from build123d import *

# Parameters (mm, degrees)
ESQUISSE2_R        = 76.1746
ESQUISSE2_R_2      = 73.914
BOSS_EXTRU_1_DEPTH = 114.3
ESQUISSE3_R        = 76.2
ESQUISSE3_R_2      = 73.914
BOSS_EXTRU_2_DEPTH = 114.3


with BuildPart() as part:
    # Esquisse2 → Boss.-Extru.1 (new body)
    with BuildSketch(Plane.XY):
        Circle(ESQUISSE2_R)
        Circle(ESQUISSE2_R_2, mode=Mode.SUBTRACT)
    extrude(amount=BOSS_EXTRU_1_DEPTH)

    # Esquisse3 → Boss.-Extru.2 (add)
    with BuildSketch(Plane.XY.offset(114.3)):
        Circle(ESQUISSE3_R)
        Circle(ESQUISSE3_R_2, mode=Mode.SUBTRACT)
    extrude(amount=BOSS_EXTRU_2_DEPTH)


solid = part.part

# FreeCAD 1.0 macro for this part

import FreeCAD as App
import Part
import Sketcher
from FreeCAD import Vector
Q = App.Units.Quantity

doc = App.newDocument("Part")
body = doc.addObject("PartDesign::Body", "Body")

sketch1 = body.newObject("Sketcher::SketchObject", "Sketch")
sketch1.AttachmentSupport = (doc.getObject("XY_Plane"), [""])
sketch1.MapMode = "FlatFace"
sketch1.addGeometry(Part.Circle(Vector(0, 0, 0), Vector(0, 0, 1), 76), False)
sketch1.addGeometry(Part.Circle(Vector(0, 0, 0), Vector(0, 0, 1), 74), False)
sketch1.addConstraint(Sketcher.Constraint("Coincident", 0, 3, -1, 1))
sketch1.addConstraint(Sketcher.Constraint("Coincident", 1, 3, -1, 1))
sketch1.addConstraint(Sketcher.Constraint("Diameter", 1, Q("5.82 in")))
sketch1.addConstraint(Sketcher.Constraint("Diameter", 0, Q("5.998 in")))
pad1 = body.newObject("PartDesign::Pad", "Pad")
pad1.Profile = sketch1
pad1.Length = Q("4.5 in")

sketch2 = body.newObject("Sketcher::SketchObject", "Sketch001")
sketch2.AttachmentSupport = (doc.getObject("XY_Plane"), [""])
sketch2.MapMode = "FlatFace"
sketch2.AttachmentOffset = App.Placement(Vector(0, 0, 4.5 * 25.4), App.Rotation())
sketch2.addGeometry(Part.Circle(Vector(0, 0, 0), Vector(0, 0, 1), 76), False)
sketch2.addGeometry(Part.Circle(Vector(0, 0, 0), Vector(0, 0, 1), 74), False)
sketch2.addConstraint(Sketcher.Constraint("Coincident", 0, 3, -1, 1))
sketch2.addConstraint(Sketcher.Constraint("Coincident", 1, 3, -1, 1))
sketch2.addConstraint(Sketcher.Constraint("Diameter", 0, Q("6 in")))
sketch2.addConstraint(Sketcher.Constraint("Diameter", 1, Q("5.82 in")))
pad2 = body.newObject("PartDesign::Pad", "Pad001")
pad2.Profile = sketch2
pad2.Length = Q("4.5 in")

doc.recompute()
